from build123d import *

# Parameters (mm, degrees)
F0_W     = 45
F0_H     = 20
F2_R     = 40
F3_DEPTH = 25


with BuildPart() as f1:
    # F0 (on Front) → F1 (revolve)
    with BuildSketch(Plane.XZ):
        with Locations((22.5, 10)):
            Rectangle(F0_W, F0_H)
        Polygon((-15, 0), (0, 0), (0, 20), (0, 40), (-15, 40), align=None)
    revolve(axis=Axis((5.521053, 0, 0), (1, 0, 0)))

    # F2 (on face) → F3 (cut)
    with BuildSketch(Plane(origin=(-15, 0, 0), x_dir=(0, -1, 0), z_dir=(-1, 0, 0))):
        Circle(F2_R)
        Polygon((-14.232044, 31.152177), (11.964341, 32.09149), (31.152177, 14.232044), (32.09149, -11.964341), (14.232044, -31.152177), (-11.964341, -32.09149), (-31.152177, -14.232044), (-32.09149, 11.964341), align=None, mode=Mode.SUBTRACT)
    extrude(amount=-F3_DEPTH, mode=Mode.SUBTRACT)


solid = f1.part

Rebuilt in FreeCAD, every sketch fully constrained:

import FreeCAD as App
import Part
import Sketcher

V = App.Vector
Q = App.Units.Quantity


def add_polygon(sketch, points):
    """Adds a closed chain of lines whose ends are joined by coincident constraints."""
    first, n = sketch.GeometryCount, len(points)
    for a, b in zip(points, points[1:] + points[:1]):
        sketch.addGeometry(Part.LineSegment(App.Vector(*a, 0), App.Vector(*b, 0)), False)
    for i in range(n):
        sketch.addConstraint(Sketcher.Constraint("Coincident", first + i, 2, first + (i + 1) % n, 1))

doc = App.newDocument("Part")
body = doc.addObject("PartDesign::Body", "Body")

# Sketch on XZ plane
sketch1 = body.newObject("Sketcher::SketchObject", "Sketch")
sketch1.AttachmentSupport = (doc.getObject("XZ_Plane"), [""])
sketch1.MapMode = "FlatFace"
add_polygon(sketch1, [(45, 0), (45, 20), (0, 20), (0, 40), (-15, 40), (-15, 0)])  # lines 0-5
sketch1.addConstraint(Sketcher.Constraint("Vertical", 0))
sketch1.addConstraint(Sketcher.Constraint("Horizontal", 1))
sketch1.addConstraint(Sketcher.Constraint("Vertical", 2))
sketch1.addConstraint(Sketcher.Constraint("Horizontal", 3))
sketch1.addConstraint(Sketcher.Constraint("Vertical", 4))
sketch1.addConstraint(Sketcher.Constraint("Horizontal", 5))
sketch1.addConstraint(Sketcher.Constraint("PointOnObject", 1, 2, -2))
sketch1.addConstraint(Sketcher.Constraint("PointOnObject", 4, 2, -1))
sketch1.addConstraint(Sketcher.Constraint("Equal", 0, 2))
sketch1.addConstraint(Sketcher.Constraint("DistanceX", 1, 2, 1, 1, Q("45 mm")))
sketch1.addConstraint(Sketcher.Constraint("DistanceX", 3, 2, 3, 1, Q("15 mm")))
sketch1.addConstraint(Sketcher.Constraint("DistanceY", 0, 1, 0, 2, Q("20 mm")))
revolution = body.newObject("PartDesign::Revolution", "Revolution")
revolution.Profile = sketch1
revolution.ReferenceAxis = (sketch1, ["H_Axis"])
revolution.Angle = 360

# Sketch on YZ plane
sketch2 = body.newObject("Sketcher::SketchObject", "Sketch001")
sketch2.AttachmentSupport = (doc.getObject("YZ_Plane"), [""])
sketch2.MapMode = "FlatFace"
sketch2.AttachmentOffset = App.Placement(V(0, 0, -15), App.Rotation())
sketch2.addGeometry(Part.Circle(V(0, 0, 0), V(0, 0, 1), 40), False)  # 0
add_polygon(sketch2, [(32, 12), (14, 31), (-12, 32), (-31, 14), (-32, -12), (-14, -31), (12, -32), (31, -14)])  # lines 1-8
sketch2.addConstraint(Sketcher.Constraint("Coincident", 0, 3, -1, 1))
sketch2.addConstraint(Sketcher.Constraint("Symmetric", 1, 2, 5, 2, -1, 1))
sketch2.addConstraint(Sketcher.Constraint("Symmetric", 2, 2, 6, 2, -1, 1))
sketch2.addConstraint(Sketcher.Constraint("Symmetric", 3, 2, 7, 2, -1, 1))
sketch2.addConstraint(Sketcher.Constraint("Symmetric", 4, 2, 8, 2, -1, 1))
sketch2.addConstraint(Sketcher.Constraint("Perpendicular", 1, 3))
sketch2.addConstraint(Sketcher.Constraint("Perpendicular", 2, 4))
sketch2.addConstraint(Sketcher.Constraint("Equal", 1, 2))
sketch2.addConstraint(Sketcher.Constraint("Equal", 2, 3))
sketch2.addConstraint(Sketcher.Constraint("Equal", 3, 4))
sketch2.addConstraint(Sketcher.Constraint("Diameter", 0, Q("80 mm")))
sketch2.addConstraint(Sketcher.Constraint("Distance", 1, Q("26.213219 mm")))
sketch2.addConstraint(Sketcher.Constraint("DistanceX", 2, 2, -1, 1, Q("11.964341 mm")))
sketch2.addConstraint(Sketcher.Constraint("DistanceY", -1, 1, 2, 2, Q("32.09149 mm")))
pocket1 = body.newObject("PartDesign::Pocket", "Pocket")
pocket1.Profile = sketch2
pocket1.Length = 25
pocket1.Reversed = True

doc.recompute()
